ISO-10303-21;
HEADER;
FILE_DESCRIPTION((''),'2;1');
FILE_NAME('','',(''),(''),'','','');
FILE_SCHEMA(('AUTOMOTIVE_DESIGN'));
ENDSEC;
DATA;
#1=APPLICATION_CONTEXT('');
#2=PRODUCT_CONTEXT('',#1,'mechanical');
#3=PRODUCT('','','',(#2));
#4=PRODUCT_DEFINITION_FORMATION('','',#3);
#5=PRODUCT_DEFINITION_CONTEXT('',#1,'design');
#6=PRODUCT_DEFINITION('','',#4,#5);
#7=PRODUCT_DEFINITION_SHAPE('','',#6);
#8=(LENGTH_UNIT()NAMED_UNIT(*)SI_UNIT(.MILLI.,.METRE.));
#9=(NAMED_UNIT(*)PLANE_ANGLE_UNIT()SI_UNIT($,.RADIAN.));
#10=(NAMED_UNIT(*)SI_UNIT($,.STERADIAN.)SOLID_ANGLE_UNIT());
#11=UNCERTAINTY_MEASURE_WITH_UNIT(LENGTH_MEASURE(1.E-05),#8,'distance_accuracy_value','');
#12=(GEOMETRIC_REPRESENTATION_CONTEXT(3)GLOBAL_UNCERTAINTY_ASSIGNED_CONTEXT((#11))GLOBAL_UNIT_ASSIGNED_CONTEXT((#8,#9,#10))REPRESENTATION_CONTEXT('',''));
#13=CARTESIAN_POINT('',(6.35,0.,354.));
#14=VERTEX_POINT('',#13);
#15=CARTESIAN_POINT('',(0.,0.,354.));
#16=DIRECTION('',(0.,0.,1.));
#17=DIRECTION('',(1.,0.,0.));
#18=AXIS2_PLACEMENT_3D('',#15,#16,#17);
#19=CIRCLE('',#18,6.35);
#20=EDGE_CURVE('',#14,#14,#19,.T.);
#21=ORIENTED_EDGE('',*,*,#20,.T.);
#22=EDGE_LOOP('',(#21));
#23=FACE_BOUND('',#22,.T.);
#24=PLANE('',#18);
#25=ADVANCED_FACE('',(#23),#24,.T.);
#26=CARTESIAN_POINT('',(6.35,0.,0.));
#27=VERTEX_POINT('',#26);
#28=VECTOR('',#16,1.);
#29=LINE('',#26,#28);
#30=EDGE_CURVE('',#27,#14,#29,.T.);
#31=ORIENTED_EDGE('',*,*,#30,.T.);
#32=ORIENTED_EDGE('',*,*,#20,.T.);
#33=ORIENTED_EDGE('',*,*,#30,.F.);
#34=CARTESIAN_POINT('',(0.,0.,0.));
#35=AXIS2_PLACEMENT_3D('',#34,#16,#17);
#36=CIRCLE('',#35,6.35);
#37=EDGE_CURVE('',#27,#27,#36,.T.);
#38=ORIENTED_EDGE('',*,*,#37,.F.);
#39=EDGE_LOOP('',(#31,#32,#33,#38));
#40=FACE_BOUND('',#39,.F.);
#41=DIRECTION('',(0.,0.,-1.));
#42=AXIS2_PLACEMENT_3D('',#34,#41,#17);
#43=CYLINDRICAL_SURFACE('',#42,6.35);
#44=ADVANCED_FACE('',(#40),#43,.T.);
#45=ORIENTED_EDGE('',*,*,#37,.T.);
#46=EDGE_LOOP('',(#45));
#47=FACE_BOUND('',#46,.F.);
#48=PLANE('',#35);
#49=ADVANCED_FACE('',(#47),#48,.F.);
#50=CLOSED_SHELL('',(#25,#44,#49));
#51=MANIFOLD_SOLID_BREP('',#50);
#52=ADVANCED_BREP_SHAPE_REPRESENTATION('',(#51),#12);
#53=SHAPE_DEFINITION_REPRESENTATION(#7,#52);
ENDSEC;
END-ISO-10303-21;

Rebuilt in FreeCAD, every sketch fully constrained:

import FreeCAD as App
import Part
import Sketcher
from FreeCAD import Vector
Q = App.Units.Quantity

doc = App.newDocument("Part")
body = doc.addObject("PartDesign::Body", "Body")

sketch1 = body.newObject("Sketcher::SketchObject", "Sketch")
sketch1.AttachmentSupport = (doc.getObject("XY_Plane"), [""])
sketch1.MapMode = "FlatFace"
sketch1.addGeometry(Part.Circle(Vector(0, 0, 0), Vector(0, 0, 1), 6), False)
sketch1.addConstraint([
    Sketcher.Constraint("Coincident", 0, 3, -1, 1),
    Sketcher.Constraint("Diameter", 0, Q("0.5 in")),
])
pad1 = body.newObject("PartDesign::Pad", "Pad")
pad1.Profile = sketch1
pad1.Length = Q("13.9370079 in")

doc.recompute()
